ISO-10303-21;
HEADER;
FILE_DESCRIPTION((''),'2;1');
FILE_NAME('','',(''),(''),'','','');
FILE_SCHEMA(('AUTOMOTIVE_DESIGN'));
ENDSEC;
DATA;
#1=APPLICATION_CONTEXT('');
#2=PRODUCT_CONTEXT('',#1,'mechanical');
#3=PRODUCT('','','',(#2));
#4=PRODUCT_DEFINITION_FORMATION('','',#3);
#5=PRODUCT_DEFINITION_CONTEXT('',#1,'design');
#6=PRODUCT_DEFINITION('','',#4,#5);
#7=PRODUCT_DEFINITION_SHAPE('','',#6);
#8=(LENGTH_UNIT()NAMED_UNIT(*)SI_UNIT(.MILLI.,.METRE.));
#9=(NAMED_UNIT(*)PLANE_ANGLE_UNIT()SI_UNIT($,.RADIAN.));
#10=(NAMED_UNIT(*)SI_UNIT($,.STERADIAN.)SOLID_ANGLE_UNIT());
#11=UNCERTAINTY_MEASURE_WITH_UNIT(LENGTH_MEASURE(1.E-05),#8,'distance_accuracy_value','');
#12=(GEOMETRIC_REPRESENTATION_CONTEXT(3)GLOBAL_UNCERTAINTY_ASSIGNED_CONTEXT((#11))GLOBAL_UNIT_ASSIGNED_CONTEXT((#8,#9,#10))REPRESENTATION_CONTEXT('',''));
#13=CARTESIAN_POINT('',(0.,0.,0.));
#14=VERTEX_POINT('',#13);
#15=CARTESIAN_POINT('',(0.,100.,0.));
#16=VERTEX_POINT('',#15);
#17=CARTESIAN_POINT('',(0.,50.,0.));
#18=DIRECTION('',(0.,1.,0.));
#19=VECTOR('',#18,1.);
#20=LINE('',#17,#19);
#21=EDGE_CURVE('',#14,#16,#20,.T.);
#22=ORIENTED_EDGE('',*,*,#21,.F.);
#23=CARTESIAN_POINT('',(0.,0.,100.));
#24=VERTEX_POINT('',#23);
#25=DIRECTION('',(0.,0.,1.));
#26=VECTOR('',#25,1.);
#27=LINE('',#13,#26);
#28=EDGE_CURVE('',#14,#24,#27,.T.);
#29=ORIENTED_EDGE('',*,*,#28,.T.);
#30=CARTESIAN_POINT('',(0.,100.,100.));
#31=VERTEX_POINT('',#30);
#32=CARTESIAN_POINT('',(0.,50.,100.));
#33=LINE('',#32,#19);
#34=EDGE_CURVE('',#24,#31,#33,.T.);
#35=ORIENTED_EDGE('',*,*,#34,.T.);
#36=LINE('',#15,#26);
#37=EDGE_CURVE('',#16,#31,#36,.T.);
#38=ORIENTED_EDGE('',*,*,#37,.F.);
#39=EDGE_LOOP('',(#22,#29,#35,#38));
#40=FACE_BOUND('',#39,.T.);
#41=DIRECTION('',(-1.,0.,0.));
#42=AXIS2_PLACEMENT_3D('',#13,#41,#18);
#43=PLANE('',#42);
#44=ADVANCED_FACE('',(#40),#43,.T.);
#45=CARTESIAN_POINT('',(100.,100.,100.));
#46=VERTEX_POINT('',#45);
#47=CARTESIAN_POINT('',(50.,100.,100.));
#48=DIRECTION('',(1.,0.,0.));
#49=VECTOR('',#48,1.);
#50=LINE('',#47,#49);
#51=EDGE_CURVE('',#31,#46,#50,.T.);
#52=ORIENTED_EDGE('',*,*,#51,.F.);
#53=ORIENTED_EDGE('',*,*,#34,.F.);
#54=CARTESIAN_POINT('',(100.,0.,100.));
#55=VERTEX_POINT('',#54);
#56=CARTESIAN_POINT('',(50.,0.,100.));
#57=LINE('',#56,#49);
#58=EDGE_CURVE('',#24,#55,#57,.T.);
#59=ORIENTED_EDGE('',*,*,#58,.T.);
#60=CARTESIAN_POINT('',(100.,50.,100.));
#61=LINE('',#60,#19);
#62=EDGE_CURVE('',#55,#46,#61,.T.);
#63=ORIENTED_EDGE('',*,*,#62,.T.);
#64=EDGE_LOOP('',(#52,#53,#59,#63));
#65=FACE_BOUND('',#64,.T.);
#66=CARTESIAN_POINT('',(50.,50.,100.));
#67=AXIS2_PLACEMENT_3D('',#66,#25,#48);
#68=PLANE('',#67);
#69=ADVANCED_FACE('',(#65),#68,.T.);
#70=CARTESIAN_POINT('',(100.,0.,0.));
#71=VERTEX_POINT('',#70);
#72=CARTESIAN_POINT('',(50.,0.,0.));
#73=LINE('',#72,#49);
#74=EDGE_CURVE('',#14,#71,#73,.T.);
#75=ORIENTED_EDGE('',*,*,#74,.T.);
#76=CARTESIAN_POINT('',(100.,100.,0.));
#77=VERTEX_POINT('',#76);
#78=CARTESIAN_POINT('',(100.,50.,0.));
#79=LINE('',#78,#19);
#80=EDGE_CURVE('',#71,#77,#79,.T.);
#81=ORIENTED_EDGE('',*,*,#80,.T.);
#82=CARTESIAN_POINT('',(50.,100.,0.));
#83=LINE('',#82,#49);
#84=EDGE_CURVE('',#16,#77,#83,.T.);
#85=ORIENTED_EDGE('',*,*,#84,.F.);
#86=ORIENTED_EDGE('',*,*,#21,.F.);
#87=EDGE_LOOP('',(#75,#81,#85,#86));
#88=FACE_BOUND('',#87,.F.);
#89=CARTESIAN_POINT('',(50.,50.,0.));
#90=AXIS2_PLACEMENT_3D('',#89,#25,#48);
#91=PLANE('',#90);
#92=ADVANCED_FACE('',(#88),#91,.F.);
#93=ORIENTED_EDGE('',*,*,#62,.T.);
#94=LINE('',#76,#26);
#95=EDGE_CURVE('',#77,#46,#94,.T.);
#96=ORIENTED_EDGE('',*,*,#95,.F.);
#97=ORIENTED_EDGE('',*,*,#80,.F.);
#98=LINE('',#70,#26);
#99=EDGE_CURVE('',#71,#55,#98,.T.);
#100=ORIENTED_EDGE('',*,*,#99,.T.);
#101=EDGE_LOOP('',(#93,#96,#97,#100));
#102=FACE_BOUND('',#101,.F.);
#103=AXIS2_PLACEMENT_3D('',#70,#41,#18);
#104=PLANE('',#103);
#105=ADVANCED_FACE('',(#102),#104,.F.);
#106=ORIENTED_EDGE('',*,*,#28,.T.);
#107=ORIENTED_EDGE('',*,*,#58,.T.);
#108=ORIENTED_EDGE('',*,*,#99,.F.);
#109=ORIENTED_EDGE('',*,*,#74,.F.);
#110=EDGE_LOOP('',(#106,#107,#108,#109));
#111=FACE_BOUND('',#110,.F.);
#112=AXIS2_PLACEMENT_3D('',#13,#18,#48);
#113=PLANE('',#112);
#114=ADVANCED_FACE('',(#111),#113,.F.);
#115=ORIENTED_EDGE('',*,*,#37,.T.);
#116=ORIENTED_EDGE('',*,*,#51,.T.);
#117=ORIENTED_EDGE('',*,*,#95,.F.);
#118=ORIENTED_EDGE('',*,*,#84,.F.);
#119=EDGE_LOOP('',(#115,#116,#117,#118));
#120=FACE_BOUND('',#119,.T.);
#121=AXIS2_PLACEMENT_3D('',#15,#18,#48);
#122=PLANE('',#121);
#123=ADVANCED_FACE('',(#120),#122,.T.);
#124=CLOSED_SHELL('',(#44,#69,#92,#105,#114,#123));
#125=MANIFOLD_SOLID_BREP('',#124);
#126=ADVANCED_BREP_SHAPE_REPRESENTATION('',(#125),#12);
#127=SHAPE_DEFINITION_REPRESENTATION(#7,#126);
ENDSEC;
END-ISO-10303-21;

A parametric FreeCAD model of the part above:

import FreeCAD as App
import Part
import Sketcher

doc = App.newDocument("Part")
body = doc.addObject("PartDesign::Body", "Body")

# Sketch on XY plane
sketch1 = doc.addObject("Sketcher::SketchObject", "Sketch")
body.addObject(sketch1)
sketch1.AttachmentSupport = (doc.XY_Plane, [""])
sketch1.MapMode = "FlatFace"
sketch1.addGeometry([
    Part.LineSegment(App.Vector(0, 100, 0), App.Vector(0, 0, 0)),
    Part.LineSegment(App.Vector(0, 0, 0), App.Vector(100, 0, 0)),
    Part.LineSegment(App.Vector(100, 0, 0), App.Vector(100, 100, 0)),
    Part.LineSegment(App.Vector(100, 100, 0), App.Vector(0, 100, 0)),
], False)
sketch1.addConstraint([
    Sketcher.Constraint("Coincident", 0, 2, 1, 1),
    Sketcher.Constraint("Coincident", 1, 2, 2, 1),
    Sketcher.Constraint("Coincident", 2, 2, 3, 1),
    Sketcher.Constraint("Coincident", 3, 2, 0, 1),
    Sketcher.Constraint("Vertical", 0),
    Sketcher.Constraint("Horizontal", 1),
    Sketcher.Constraint("Vertical", 2),
    Sketcher.Constraint("Horizontal", 3),
    Sketcher.Constraint("Coincident", 0, 2, -1, 1),
    Sketcher.Constraint("Equal", 3, 0),
    Sketcher.Constraint("DistanceX", 1, 1, 1, 2, 100.0),
])
pad1 = doc.addObject("PartDesign::Pad", "Pad")
body.addObject(pad1)
pad1.Profile = sketch1
pad1.Length = 100

doc.recompute()
